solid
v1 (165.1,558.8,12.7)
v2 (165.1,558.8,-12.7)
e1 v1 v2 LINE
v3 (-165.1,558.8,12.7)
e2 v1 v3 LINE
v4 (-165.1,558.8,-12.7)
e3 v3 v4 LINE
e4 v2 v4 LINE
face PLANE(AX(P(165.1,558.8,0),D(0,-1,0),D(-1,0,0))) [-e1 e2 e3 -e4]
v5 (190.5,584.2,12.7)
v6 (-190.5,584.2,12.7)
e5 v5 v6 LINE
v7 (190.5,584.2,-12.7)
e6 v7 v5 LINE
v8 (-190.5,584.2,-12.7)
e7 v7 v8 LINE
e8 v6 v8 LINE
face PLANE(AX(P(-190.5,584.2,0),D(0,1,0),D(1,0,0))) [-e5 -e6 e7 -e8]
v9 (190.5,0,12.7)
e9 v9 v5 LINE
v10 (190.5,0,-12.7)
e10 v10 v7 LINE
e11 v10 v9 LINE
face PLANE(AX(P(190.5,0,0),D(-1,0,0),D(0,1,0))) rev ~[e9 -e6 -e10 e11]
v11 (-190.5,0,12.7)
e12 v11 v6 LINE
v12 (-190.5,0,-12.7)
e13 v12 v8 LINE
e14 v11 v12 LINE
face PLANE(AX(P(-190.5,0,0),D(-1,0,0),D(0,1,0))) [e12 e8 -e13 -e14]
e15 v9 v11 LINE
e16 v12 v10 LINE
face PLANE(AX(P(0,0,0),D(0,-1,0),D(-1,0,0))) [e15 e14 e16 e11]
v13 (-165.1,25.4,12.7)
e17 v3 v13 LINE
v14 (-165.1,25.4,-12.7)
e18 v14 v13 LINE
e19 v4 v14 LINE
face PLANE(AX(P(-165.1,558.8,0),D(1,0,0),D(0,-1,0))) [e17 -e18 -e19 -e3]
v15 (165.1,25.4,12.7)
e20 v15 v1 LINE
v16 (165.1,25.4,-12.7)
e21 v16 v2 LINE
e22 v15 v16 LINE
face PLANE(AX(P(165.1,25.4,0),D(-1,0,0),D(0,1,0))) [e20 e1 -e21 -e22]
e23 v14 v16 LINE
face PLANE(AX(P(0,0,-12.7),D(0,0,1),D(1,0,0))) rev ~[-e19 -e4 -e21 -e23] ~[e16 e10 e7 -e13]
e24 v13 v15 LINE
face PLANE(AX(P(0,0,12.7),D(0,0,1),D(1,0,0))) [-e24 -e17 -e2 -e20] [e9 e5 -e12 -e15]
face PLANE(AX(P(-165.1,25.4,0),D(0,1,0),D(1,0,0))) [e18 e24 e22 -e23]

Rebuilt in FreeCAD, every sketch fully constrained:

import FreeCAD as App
import Part
import Sketcher

V = App.Vector
Q = App.Units.Quantity

doc = App.newDocument("Part")
body = doc.addObject("PartDesign::Body", "Body")

# Sketch on XY plane
sketch1 = body.newObject("Sketcher::SketchObject", "Sketch")
sketch1.AttachmentSupport = (doc.getObject("XY_Plane"), [""])
sketch1.MapMode = "FlatFace"
sketch1.addGeometry(Part.LineSegment(V(-190, 0, 0), V(190, 0, 0)), False)
sketch1.addGeometry(Part.LineSegment(V(190, 0, 0), V(190, 584, 0)), False)
sketch1.addGeometry(Part.LineSegment(V(190, 584, 0), V(-190, 584, 0)), False)
sketch1.addGeometry(Part.LineSegment(V(-190, 584, 0), V(-190, 0, 0)), False)
sketch1.addGeometry(Part.LineSegment(V(165, 25, 0), V(-165, 25, 0)), False)
sketch1.addGeometry(Part.LineSegment(V(-165, 25, 0), V(-165, 559, 0)), False)
sketch1.addGeometry(Part.LineSegment(V(-165, 559, 0), V(165, 559, 0)), False)
sketch1.addGeometry(Part.LineSegment(V(165, 559, 0), V(165, 25, 0)), False)
sketch1.addConstraint(Sketcher.Constraint("Coincident", 0, 2, 1, 1))
sketch1.addConstraint(Sketcher.Constraint("Coincident", 1, 2, 2, 1))
sketch1.addConstraint(Sketcher.Constraint("Coincident", 2, 2, 3, 1))
sketch1.addConstraint(Sketcher.Constraint("Coincident", 3, 2, 0, 1))
sketch1.addConstraint(Sketcher.Constraint("Coincident", 4, 2, 5, 1))
sketch1.addConstraint(Sketcher.Constraint("Coincident", 5, 2, 6, 1))
sketch1.addConstraint(Sketcher.Constraint("Coincident", 6, 2, 7, 1))
sketch1.addConstraint(Sketcher.Constraint("Coincident", 7, 2, 4, 1))
sketch1.addConstraint(Sketcher.Constraint("Horizontal", 0))
sketch1.addConstraint(Sketcher.Constraint("Vertical", 1))
sketch1.addConstraint(Sketcher.Constraint("Horizontal", 2))
sketch1.addConstraint(Sketcher.Constraint("Vertical", 3))
sketch1.addConstraint(Sketcher.Constraint("Horizontal", 4))
sketch1.addConstraint(Sketcher.Constraint("Vertical", 5))
sketch1.addConstraint(Sketcher.Constraint("Horizontal", 6))
sketch1.addConstraint(Sketcher.Constraint("Vertical", 7))
sketch1.addConstraint(Sketcher.Constraint("Symmetric", 0, 2, 3, 2, -1, 1))
sketch1.addConstraint(Sketcher.Constraint("DistanceX", 0, 1, 0, 2, Q("15 in")))
sketch1.addConstraint(Sketcher.Constraint("DistanceY", 1, 1, 1, 2, Q("23 in")))
sketch1.addConstraint(Sketcher.Constraint("DistanceY", -1, 1, 4, 2, Q("1 in")))
sketch1.addConstraint(Sketcher.Constraint("DistanceX", 3, 2, 4, 2, Q("1 in")))
sketch1.addConstraint(Sketcher.Constraint("DistanceY", 5, 2, 2, 2, Q("1 in")))
sketch1.addConstraint(Sketcher.Constraint("DistanceX", 6, 2, 1, 2, Q("1 in")))
pad1 = body.newObject("PartDesign::Pad", "Pad")
pad1.Profile = sketch1
pad1.Length = Q("1 in")
pad1.Midplane = True

doc.recompute()
